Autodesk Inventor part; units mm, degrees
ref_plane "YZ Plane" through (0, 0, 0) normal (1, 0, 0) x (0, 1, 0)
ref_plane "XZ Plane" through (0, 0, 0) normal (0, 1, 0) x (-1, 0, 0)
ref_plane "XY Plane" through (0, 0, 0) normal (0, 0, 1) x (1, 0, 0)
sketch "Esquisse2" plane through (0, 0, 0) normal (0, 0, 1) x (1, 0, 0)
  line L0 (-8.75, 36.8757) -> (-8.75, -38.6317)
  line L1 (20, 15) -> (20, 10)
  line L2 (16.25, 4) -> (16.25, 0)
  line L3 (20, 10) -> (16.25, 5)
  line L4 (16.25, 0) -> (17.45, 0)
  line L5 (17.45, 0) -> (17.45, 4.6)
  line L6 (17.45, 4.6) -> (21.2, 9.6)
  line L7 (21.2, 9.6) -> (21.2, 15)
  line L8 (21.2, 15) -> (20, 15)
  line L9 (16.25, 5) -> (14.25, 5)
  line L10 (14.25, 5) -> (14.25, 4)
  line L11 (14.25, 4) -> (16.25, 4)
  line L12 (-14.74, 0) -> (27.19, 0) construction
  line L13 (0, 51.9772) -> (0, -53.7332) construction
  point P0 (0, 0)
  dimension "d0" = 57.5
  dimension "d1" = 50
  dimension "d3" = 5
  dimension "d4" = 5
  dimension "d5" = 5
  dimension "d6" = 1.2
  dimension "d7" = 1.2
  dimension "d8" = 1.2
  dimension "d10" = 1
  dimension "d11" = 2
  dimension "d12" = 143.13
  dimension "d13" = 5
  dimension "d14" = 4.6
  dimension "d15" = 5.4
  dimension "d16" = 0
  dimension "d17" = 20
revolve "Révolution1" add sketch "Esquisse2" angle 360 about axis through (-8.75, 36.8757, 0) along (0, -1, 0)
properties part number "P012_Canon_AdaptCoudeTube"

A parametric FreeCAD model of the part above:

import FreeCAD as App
import Part
import Sketcher

V = App.Vector
Q = App.Units.Quantity

doc = App.newDocument("Part")
params = doc.addObject("Spreadsheet::Sheet", "Params")
for row, (alias, value) in enumerate([
    ("sketch1_width", "2 mm"),
    ("sketch1_height", "5 mm"),
    ("sketch1_height2", "1 mm"),
    ("sketch1_width2", "1.2 mm"),
    ("sketch1_height3", "4.6 mm"),
    ("revolution_angle", "360 deg"),
], start=1):
    params.set(f"A{row}", alias)
    params.set(f"B{row}", "=" + value)
    params.setAlias(f"B{row}", alias)

body = doc.addObject("PartDesign::Body", "Body")

# Sketch on XY plane
sketch1 = body.newObject("Sketcher::SketchObject", "Sketch")
sketch1.AttachmentSupport = (doc.getObject("XY_Plane"), [""])
sketch1.MapMode = "FlatFace"
sketch1.addGeometry([
    Part.LineSegment(V(21.2, 15, 0), V(20, 15, 0)),  # 0
    Part.LineSegment(V(20, 15, 0), V(20, 10, 0)),  # 1
    Part.LineSegment(V(20, 10, 0), V(16.2, 5, 0)),  # 2
    Part.LineSegment(V(16.2, 5, 0), V(14.2, 5, 0)),  # 3
    Part.LineSegment(V(14.2, 5, 0), V(14.2, 4, 0)),  # 4
    Part.LineSegment(V(14.2, 4, 0), V(16.2, 4, 0)),  # 5
    Part.LineSegment(V(16.2, 4, 0), V(16.2, 0, 0)),  # 6
    Part.LineSegment(V(16.2, 0, 0), V(17.4, 0, 0)),  # 7
    Part.LineSegment(V(17.4, 0, 0), V(17.4, 4.6, 0)),  # 8
    Part.LineSegment(V(17.4, 4.6, 0), V(21.2, 9.6, 0)),  # 9
    Part.LineSegment(V(21.2, 9.6, 0), V(21.2, 15, 0)),  # 10
], False)
sketch1.addGeometry(Part.LineSegment(V(-8.8, 15, 0), V(-8.8, 0, 0)), True)  # axis
sketch1.addConstraint([
    Sketcher.Constraint("Coincident", 0, 2, 1, 1),
    Sketcher.Constraint("Coincident", 1, 2, 2, 1),
    Sketcher.Constraint("Coincident", 2, 2, 3, 1),
    Sketcher.Constraint("Coincident", 3, 2, 4, 1),
    Sketcher.Constraint("Coincident", 4, 2, 5, 1),
    Sketcher.Constraint("Coincident", 5, 2, 6, 1),
    Sketcher.Constraint("Coincident", 6, 2, 7, 1),
    Sketcher.Constraint("Coincident", 7, 2, 8, 1),
    Sketcher.Constraint("Coincident", 8, 2, 9, 1),
    Sketcher.Constraint("Coincident", 9, 2, 10, 1),
    Sketcher.Constraint("Coincident", 10, 2, 0, 1),
    Sketcher.Constraint("Horizontal", 0),
    Sketcher.Constraint("Vertical", 1),
    Sketcher.Constraint("Horizontal", 3),
    Sketcher.Constraint("Vertical", 4),
    Sketcher.Constraint("Horizontal", 5),
    Sketcher.Constraint("Vertical", 6),
    Sketcher.Constraint("Horizontal", 7),
    Sketcher.Constraint("Vertical", 8),
    Sketcher.Constraint("Vertical", 10),
    Sketcher.Constraint("Vertical", 11),
    Sketcher.Constraint("PointOnObject", 6, 2, -1),
    Sketcher.Constraint("PointOnObject", 11, 2, -1),
    Sketcher.Constraint("Parallel", 2, 9),
    Sketcher.Constraint("Horizontal", 10, 2, 11, 1),
    Sketcher.Constraint("Vertical", 2, 2, 5, 2),
    Sketcher.Constraint("Equal", 0, 7),
    Sketcher.Constraint("DistanceX", 3, 2, 3, 1, 2.0),
    Sketcher.Constraint("DistanceY", 1, 2, 1, 1, 5.0),
    Sketcher.Constraint("DistanceY", 4, 2, 4, 1, 1.0),
    Sketcher.Constraint("DistanceX", 0, 2, 0, 1, 1.2),
    Sketcher.Constraint("DistanceY", 8, 1, 8, 2, 4.6),
    Sketcher.Constraint("DistanceY", 10, 1, 10, 2, 5.4),
    Sketcher.Constraint("DistanceX", -1, 1, 0, 2, 20.0),
    Sketcher.Constraint("DistanceY", 2, 2, 1, 2, 5.0),
    Sketcher.Constraint("DistanceX", 11, 1, 3, 2, 23.0),
    Sketcher.Constraint("Angle", 2, Q("-126.87 deg")),
])
sketch1.setExpression("Constraints[27]", "Params.sketch1_width")
sketch1.setExpression("Constraints[28]", "Params.sketch1_height")
sketch1.setExpression("Constraints[29]", "Params.sketch1_height2")
sketch1.setExpression("Constraints[30]", "Params.sketch1_width2")
sketch1.setExpression("Constraints[31]", "Params.sketch1_height3")
revolution = body.newObject("PartDesign::Revolution", "Revolution")
revolution.Profile = sketch1
revolution.ReferenceAxis = (sketch1, ["Axis0"])
revolution.setExpression("Angle", "Params.revolution_angle")

doc.recompute()
